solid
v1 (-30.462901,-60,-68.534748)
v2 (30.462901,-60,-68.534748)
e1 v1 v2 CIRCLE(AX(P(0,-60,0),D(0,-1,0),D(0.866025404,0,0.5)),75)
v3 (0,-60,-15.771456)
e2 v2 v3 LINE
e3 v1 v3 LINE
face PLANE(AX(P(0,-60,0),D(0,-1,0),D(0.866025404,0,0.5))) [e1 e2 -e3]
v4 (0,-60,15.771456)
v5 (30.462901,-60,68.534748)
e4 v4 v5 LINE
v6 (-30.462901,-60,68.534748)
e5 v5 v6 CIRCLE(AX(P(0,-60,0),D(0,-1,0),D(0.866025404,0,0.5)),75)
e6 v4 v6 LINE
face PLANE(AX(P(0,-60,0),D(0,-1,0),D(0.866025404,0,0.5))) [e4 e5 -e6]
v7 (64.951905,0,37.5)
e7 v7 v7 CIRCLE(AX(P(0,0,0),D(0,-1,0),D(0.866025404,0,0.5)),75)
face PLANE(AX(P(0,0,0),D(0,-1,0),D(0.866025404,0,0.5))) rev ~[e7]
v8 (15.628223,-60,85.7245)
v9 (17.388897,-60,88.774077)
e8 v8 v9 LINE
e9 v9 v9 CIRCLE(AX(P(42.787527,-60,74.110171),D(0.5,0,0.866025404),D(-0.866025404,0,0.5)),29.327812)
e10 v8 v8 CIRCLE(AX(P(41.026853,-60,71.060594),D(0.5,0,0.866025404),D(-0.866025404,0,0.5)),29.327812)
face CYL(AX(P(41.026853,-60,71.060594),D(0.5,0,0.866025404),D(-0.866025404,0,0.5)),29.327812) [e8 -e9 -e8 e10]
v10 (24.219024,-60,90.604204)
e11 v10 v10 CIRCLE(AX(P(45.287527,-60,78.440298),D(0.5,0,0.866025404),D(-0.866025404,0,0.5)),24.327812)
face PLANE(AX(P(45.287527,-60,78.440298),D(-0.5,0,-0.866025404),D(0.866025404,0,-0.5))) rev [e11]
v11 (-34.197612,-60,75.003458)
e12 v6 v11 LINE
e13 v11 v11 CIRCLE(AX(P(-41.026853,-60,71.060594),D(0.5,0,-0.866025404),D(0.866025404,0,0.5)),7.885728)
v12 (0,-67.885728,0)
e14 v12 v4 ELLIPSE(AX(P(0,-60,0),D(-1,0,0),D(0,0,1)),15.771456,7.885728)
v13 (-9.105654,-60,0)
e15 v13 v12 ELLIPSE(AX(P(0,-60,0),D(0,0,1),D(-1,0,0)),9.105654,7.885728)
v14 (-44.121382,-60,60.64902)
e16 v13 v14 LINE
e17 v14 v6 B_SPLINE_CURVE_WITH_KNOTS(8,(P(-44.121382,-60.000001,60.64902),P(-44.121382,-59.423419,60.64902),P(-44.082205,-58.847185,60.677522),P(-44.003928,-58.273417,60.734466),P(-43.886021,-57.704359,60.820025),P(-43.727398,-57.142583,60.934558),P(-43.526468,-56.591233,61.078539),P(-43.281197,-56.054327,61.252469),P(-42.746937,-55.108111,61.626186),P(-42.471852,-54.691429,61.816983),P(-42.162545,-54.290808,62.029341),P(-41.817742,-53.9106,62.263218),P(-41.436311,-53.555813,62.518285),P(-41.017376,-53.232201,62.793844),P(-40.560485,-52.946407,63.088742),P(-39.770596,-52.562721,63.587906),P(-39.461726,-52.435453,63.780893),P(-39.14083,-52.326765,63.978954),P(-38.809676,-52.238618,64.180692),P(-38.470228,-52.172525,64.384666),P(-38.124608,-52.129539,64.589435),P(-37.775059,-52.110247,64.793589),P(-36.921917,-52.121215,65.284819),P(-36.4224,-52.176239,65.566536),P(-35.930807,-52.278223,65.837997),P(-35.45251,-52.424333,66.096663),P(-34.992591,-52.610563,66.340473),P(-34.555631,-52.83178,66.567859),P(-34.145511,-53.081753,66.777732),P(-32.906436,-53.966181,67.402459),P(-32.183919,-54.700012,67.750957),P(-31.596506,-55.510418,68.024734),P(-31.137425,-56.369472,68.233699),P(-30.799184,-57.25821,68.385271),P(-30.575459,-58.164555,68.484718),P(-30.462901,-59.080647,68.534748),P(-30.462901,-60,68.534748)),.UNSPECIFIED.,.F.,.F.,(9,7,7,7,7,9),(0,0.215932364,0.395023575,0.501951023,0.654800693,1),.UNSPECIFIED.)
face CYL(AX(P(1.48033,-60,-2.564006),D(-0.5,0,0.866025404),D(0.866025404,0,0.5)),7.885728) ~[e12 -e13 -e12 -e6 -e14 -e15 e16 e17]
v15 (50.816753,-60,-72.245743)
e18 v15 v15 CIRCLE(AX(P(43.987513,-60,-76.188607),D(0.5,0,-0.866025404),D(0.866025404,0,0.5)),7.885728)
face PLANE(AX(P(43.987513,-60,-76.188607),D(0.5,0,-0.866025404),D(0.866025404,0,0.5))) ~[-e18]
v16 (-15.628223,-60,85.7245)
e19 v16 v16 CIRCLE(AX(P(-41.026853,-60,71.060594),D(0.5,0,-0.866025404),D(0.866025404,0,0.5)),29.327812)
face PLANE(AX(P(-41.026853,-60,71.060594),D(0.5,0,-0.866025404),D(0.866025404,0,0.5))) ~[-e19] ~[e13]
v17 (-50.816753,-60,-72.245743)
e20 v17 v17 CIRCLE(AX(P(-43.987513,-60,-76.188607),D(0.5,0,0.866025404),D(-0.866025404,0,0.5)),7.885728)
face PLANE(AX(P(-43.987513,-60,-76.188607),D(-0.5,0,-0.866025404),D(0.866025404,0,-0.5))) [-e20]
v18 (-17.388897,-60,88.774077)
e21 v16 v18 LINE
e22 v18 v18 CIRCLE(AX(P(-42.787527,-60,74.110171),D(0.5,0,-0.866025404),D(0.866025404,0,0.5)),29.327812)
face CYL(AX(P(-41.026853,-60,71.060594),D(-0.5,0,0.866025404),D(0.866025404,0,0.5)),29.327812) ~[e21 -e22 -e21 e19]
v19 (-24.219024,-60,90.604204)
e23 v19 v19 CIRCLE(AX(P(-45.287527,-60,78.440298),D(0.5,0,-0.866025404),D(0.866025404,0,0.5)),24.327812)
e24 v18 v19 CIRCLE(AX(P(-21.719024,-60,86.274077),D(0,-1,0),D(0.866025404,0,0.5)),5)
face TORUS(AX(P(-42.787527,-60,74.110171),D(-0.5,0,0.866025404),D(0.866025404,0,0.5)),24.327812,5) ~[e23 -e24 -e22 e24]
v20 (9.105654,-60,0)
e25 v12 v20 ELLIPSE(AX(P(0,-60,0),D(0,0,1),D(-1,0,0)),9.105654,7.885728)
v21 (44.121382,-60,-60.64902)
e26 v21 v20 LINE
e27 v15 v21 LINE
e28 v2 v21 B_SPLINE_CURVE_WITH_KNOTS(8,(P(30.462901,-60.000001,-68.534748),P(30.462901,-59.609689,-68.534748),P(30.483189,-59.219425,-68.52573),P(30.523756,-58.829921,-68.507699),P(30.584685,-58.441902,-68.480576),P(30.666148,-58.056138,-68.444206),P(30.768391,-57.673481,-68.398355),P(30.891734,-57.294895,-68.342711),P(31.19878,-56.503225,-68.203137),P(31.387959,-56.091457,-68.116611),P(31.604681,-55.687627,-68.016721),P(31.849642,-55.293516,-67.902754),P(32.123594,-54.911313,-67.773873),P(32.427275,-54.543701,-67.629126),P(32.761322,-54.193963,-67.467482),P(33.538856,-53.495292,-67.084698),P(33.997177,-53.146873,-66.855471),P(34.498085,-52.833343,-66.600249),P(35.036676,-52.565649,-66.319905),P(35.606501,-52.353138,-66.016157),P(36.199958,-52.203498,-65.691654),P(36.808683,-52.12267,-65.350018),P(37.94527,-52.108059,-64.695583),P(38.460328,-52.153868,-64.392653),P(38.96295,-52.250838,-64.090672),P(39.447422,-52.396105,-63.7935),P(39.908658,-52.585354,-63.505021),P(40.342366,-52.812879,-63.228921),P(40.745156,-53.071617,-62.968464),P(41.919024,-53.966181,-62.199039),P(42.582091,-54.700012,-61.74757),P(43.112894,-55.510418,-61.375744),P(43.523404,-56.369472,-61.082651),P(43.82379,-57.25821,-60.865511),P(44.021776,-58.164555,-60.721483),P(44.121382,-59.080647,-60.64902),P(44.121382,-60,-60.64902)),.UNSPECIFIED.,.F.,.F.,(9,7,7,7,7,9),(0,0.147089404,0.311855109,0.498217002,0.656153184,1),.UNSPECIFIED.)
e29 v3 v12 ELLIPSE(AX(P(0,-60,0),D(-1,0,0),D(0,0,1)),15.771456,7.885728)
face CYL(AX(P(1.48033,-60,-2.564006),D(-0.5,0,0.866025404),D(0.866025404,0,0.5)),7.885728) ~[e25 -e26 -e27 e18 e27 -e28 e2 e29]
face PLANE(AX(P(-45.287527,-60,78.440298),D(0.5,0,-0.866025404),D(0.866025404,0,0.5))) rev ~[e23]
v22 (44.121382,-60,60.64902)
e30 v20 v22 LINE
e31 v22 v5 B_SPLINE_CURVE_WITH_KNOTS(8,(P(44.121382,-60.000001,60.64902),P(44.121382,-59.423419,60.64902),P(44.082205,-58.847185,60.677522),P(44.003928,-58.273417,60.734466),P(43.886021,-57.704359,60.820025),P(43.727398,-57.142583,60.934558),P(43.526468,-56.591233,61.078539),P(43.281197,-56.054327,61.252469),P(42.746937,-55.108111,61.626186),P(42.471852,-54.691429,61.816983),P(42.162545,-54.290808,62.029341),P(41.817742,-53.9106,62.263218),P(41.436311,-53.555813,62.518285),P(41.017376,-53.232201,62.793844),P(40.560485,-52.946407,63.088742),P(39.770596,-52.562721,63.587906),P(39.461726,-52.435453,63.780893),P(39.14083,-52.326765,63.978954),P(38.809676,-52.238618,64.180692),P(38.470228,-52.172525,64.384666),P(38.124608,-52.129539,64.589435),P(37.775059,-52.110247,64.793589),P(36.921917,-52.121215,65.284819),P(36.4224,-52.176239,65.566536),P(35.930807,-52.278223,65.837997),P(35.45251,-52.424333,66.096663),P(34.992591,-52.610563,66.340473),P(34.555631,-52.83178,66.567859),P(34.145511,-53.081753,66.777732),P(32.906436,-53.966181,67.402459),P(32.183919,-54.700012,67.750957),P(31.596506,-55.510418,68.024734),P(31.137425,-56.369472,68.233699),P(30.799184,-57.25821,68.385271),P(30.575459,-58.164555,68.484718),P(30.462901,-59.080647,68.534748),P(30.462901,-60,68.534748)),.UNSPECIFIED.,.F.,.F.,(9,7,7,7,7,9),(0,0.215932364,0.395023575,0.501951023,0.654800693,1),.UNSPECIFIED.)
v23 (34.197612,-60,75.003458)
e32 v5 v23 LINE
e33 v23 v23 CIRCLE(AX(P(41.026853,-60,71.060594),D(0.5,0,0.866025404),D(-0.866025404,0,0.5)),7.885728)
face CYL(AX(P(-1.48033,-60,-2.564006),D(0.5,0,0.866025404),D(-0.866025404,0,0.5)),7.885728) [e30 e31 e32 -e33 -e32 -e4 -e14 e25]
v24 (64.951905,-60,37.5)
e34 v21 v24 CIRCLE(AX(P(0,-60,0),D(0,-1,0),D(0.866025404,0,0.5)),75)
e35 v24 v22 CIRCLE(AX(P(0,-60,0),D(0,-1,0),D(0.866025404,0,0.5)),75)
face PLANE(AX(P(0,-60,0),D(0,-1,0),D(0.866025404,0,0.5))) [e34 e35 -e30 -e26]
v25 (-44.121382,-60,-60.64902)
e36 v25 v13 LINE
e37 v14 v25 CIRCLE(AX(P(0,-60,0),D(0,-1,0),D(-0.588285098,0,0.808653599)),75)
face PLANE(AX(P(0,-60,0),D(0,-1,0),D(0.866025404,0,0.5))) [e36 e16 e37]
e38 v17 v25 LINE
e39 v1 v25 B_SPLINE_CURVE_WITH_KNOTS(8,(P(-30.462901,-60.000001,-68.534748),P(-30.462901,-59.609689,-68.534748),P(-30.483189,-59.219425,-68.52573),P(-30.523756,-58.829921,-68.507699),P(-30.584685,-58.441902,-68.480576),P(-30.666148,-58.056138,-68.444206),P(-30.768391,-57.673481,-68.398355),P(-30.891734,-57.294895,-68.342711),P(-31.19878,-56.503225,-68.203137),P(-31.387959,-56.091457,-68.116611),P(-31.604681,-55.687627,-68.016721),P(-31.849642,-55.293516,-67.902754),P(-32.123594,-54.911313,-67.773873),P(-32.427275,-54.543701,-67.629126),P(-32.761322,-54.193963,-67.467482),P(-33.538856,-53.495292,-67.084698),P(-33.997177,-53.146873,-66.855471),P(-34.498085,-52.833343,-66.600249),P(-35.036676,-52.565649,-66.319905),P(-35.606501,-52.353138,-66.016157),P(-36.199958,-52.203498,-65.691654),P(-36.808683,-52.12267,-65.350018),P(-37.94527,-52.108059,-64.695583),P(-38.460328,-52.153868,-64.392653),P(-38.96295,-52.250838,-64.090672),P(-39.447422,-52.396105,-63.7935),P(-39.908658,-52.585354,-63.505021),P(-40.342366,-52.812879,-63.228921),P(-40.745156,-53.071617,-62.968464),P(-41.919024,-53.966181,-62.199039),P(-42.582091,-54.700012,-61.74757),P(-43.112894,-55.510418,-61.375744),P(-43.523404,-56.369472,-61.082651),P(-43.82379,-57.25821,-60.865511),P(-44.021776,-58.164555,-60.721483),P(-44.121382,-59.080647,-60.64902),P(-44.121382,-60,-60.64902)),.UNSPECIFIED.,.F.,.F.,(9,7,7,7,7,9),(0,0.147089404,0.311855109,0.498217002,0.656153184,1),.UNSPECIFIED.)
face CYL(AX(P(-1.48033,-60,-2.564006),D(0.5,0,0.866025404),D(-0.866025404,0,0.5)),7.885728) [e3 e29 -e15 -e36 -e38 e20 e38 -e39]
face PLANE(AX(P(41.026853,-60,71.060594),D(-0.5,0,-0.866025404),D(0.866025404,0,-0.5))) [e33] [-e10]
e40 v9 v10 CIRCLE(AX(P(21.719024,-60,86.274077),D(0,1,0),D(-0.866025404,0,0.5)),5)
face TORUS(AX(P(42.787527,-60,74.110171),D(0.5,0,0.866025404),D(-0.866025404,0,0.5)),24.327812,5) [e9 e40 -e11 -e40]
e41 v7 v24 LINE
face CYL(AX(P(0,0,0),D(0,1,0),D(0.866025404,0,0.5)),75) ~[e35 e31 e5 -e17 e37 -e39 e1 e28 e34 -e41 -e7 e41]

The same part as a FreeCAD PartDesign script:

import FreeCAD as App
import Part
import Sketcher
from FreeCAD import Vector


def edges_at(feature, points):
    """Names of the edges that pass closest to the given points."""
    edges = feature.Shape.Edges
    near = lambda p: min(range(len(edges)), key=lambda i: edges[i].distToShape(Part.Vertex(*p))[0])
    return sorted({f"Edge{near(p) + 1}" for p in points})


def add_polygon(sketch, points):
    """Adds a closed chain of lines whose ends are joined by coincident constraints."""
    first, n = sketch.GeometryCount, len(points)
    for a, b in zip(points, points[1:] + points[:1]):
        sketch.addGeometry(Part.LineSegment(App.Vector(*a, 0), App.Vector(*b, 0)), False)
    for i in range(n):
        sketch.addConstraint(Sketcher.Constraint("Coincident", first + i, 2, first + (i + 1) % n, 1))

doc = App.newDocument("Part")
body = doc.addObject("PartDesign::Body", "Body")

# Sketch on XZ plane
sketch1 = body.newObject("Sketcher::SketchObject", "Sketch")
sketch1.AttachmentSupport = (doc.getObject("XZ_Plane"), [""])
sketch1.MapMode = "FlatFace"
sketch1.addGeometry(Part.Circle(Vector(0, 0, 0), Vector(0, 0, 1), 75), False)
sketch1.addConstraint(Sketcher.Constraint("Coincident", 0, 3, -1, 1))
sketch1.addConstraint(Sketcher.Constraint("Diameter", 0, 150.0))
pad1 = body.newObject("PartDesign::Pad", "Pad")
pad1.Profile = sketch1
pad1.Length = 60

# Sketch on XZ plane
sketch2 = body.newObject("Sketcher::SketchObject", "Sketch001")
sketch2.AttachmentSupport = (doc.getObject("XZ_Plane"), [""])
sketch2.MapMode = "FlatFace"
sketch2.AttachmentOffset = App.Placement(Vector(0, 0, 60), App.Rotation())
add_polygon(sketch2, [(0, 91), (0, -88), (8, -88), (8, 82), (29, 82), (29, 91)])  # lines 0-5
sketch2.addConstraint(Sketcher.Constraint("Vertical", 0))
sketch2.addConstraint(Sketcher.Constraint("Horizontal", 1))
sketch2.addConstraint(Sketcher.Constraint("Vertical", 2))
sketch2.addConstraint(Sketcher.Constraint("Horizontal", 3))
sketch2.addConstraint(Sketcher.Constraint("Vertical", 4))
sketch2.addConstraint(Sketcher.Constraint("Horizontal", 5))
sketch2.addConstraint(Sketcher.Constraint("PointOnObject", 0, 2, -2))
sketch2.addConstraint(Sketcher.Constraint("DistanceX", 1, 1, 1, 2, 7.885728))
sketch2.addConstraint(Sketcher.Constraint("DistanceX", 5, 2, 5, 1, 29.327812))
sketch2.addConstraint(Sketcher.Constraint("DistanceY", 0, 2, 0, 1, 178.550079))
sketch2.addConstraint(Sketcher.Constraint("DistanceY", 2, 1, 2, 2, 170.028731))
sketch2.addConstraint(Sketcher.Constraint("DistanceY", 0, 2, -1, 1, 87.975025))
revolution = body.newObject("PartDesign::Revolution", "Revolution")
revolution.Profile = sketch2
revolution.ReferenceAxis = (sketch2, ["V_Axis"])
revolution.Angle = 360
body2 = doc.addObject("PartDesign::Body", "Body001")
doc.recompute()

body.Placement = App.Placement(Vector(0, 0, 0), App.Rotation(Vector(0, -1, 0), 30))
boolean = body2.newObject("PartDesign::Boolean", "Boolean")
boolean.Type = "Fuse"
boolean.addObjects([body])
body3 = doc.addObject("PartDesign::Body", "Body002")
doc.recompute()

body3.BaseFeature = body2
doc.recompute()

mirroring = doc.addObject("Part::Mirroring", "Mirroring")
mirroring.Source = body2
mirroring.Base = Vector(0, 0, 0)
mirroring.Normal = Vector(1, 0, 0)
body4 = doc.addObject("PartDesign::Body", "Body003")
body4.BaseFeature = mirroring
boolean2 = body3.newObject("PartDesign::Boolean", "Boolean001")
boolean2.Type = "Fuse"
boolean2.addObjects([body4])
doc.recompute()

fillet = body3.newObject("PartDesign::Fillet", "Fillet")
fillet.Base = (boolean2, edges_at(boolean2, [(-70.686, -60, 63.776)]))
fillet.Radius = 5
doc.recompute()

fillet2 = body3.newObject("PartDesign::Fillet", "Fillet001")
fillet2.Base = (fillet, edges_at(fillet, [(70.686, -60, 63.776)]))
fillet2.Radius = 5
mirroring.Visibility = False

doc.recompute()
